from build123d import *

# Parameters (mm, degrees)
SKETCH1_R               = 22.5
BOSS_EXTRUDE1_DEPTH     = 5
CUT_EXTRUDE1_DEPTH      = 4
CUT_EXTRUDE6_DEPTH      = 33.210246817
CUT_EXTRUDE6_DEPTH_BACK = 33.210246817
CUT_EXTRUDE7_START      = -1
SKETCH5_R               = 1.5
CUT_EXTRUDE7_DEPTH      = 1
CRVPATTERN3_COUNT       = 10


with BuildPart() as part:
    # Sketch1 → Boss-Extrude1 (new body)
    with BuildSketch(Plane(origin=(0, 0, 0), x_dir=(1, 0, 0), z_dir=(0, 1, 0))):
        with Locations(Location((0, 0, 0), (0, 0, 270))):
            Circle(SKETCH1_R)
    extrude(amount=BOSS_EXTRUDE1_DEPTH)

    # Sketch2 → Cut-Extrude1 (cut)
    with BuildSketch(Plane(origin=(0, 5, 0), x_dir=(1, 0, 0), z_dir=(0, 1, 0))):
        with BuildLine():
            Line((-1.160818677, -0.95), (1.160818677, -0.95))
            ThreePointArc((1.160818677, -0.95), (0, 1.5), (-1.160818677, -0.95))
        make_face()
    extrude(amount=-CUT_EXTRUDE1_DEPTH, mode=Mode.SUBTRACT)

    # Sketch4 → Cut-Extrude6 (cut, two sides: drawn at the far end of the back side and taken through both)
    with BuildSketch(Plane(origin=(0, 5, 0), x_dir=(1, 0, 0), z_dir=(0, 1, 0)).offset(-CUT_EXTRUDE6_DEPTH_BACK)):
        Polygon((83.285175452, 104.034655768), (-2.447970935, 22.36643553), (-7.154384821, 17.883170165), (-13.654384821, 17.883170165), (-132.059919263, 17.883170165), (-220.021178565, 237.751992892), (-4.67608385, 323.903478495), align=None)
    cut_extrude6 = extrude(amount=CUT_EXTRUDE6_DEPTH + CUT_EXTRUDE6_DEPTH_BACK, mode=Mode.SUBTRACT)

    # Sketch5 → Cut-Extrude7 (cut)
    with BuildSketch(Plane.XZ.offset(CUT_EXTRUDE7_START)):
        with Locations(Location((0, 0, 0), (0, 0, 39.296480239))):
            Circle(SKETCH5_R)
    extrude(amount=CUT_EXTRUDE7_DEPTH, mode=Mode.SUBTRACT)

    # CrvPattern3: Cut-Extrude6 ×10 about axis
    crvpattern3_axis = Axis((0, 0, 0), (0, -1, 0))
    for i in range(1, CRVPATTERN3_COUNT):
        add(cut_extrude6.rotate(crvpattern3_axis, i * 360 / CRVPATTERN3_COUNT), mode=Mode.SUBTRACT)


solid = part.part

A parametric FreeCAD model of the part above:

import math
import FreeCAD as App
import Part
import Sketcher
from FreeCAD import Vector
Q = App.Units.Quantity

doc = App.newDocument("Part")
body = doc.addObject("PartDesign::Body", "Body")

sketch1 = body.newObject("Sketcher::SketchObject", "Sketch")
sketch1.AttachmentSupport = (doc.getObject("XZ_Plane"), [""])
sketch1.MapMode = "FlatFace"
sketch1.addGeometry(Part.Circle(Vector(0, 0, 0), Vector(0, 0, 1), 22), False)
sketch1.addConstraint([
    Sketcher.Constraint("Coincident", 0, 3, -1, 1),
    Sketcher.Constraint("Diameter", 0, Q("45 mm")),
])
pad1 = body.newObject("PartDesign::Pad", "Pad")
pad1.Profile = sketch1
pad1.Length = 5
pad1.Reversed = True

sketch2 = body.newObject("Sketcher::SketchObject", "Sketch001")
sketch2.AttachmentSupport = (doc.getObject("XZ_Plane"), [""])
sketch2.MapMode = "FlatFace"
sketch2.AttachmentOffset = App.Placement(Vector(0, 0, -5), App.Rotation())
sketch2.addGeometry([
    Part.LineSegment(Vector(-1.2, 0.9, 0), Vector(1.2, 0.9, 0)),
    Part.ArcOfCircle(Part.Circle(Vector(0, 0, 0), Vector(0, 0, 1), 1.5), math.radians(141), math.radians(399)),
], False)
sketch2.addConstraint([
    Sketcher.Constraint("Coincident", 0, 1, 1, 1),
    Sketcher.Constraint("Coincident", 1, 2, 0, 2),
    Sketcher.Constraint("Horizontal", 0),
    Sketcher.Constraint("Coincident", 1, 3, -1, 1),
    Sketcher.Constraint("Radius", 1, Q("1.5 mm")),
    Sketcher.Constraint("DistanceY", -1, 1, 0, 1, Q("0.95 mm")),
])
pocket1 = body.newObject("PartDesign::Pocket", "Pocket")
pocket1.Profile = sketch2
pocket1.Length = 4
pocket1.Reversed = True

sketch3 = body.newObject("Sketcher::SketchObject", "Sketch002")
sketch3.AttachmentSupport = (doc.getObject("XZ_Plane"), [""])
sketch3.MapMode = "FlatFace"
sketch3.AttachmentOffset = App.Placement(Vector(0, 0, -5), App.Rotation())
sketch3.addGeometry([
    Part.LineSegment(Vector(-2, -22, 0), Vector(83, -104, 0)),
    Part.LineSegment(Vector(83, -104, 0), Vector(-5, -324, 0)),
    Part.LineSegment(Vector(-5, -324, 0), Vector(-220, -238, 0)),
    Part.LineSegment(Vector(-220, -238, 0), Vector(-132, -18, 0)),
    Part.LineSegment(Vector(-132, -18, 0), Vector(-7, -18, 0)),
    Part.LineSegment(Vector(-7, -18, 0), Vector(-2, -22, 0)),
], False)
sketch3.addConstraint([
    Sketcher.Constraint("Coincident", 0, 2, 1, 1),
    Sketcher.Constraint("Coincident", 1, 2, 2, 1),
    Sketcher.Constraint("Coincident", 2, 2, 3, 1),
    Sketcher.Constraint("Coincident", 3, 2, 4, 1),
    Sketcher.Constraint("Coincident", 4, 2, 5, 1),
    Sketcher.Constraint("Coincident", 5, 2, 0, 1),
    Sketcher.Constraint("Horizontal", 4),
    Sketcher.Constraint("Perpendicular", 1, 2),
    Sketcher.Constraint("Perpendicular", 2, 3),
    Sketcher.Constraint("Parallel", 0, 5),
    Sketcher.Constraint("Equal", 1, 3),
    Sketcher.Constraint("Distance", 5, Q("6.5 mm")),
    Sketcher.Constraint("DistanceX", 4, 2, 1, 2, Q("2.478301 mm")),
    Sketcher.Constraint("Distance", 1, Q("236.811069 mm")),
    Sketcher.Constraint("Distance", 2, Q("231.93876 mm")),
    Sketcher.Constraint("DistanceX", 4, 1, 4, 2, Q("124.905534 mm")),
    Sketcher.Constraint("DistanceY", 1, 2, -1, 1, Q("323.903478 mm")),
    Sketcher.Constraint("DistanceX", 2, 2, -1, 1, Q("220.021179 mm")),
])
pocket2 = body.newObject("PartDesign::Pocket", "Pocket001")
pocket2.Profile = sketch3
pocket2.Type = "ThroughAll"
pocket2.Midplane = True

sketch4 = body.newObject("Sketcher::SketchObject", "Sketch003")
sketch4.AttachmentSupport = (doc.getObject("XZ_Plane"), [""])
sketch4.MapMode = "FlatFace"
sketch4.AttachmentOffset = App.Placement(Vector(0, 0, -1), App.Rotation())
sketch4.addGeometry(Part.Circle(Vector(0, 0, 0), Vector(0, 0, 1), 1.5), False)
sketch4.addConstraint([
    Sketcher.Constraint("Coincident", 0, 3, -1, 1),
    Sketcher.Constraint("Diameter", 0, Q("3 mm")),
])
pocket3 = body.newObject("PartDesign::Pocket", "Pocket002")
pocket3.Profile = sketch4
pocket3.Length = 1
pocket3.Reversed = True
doc.recompute()

polarpattern = body.newObject("PartDesign::PolarPattern", "PolarPattern")
polarpattern.Originals = [pocket2]
polarpattern.Axis = (doc.getObject("Y_Axis"), [""])
polarpattern.Angle = 360
polarpattern.Occurrences = 10
body.Tip = polarpattern

doc.recompute()
